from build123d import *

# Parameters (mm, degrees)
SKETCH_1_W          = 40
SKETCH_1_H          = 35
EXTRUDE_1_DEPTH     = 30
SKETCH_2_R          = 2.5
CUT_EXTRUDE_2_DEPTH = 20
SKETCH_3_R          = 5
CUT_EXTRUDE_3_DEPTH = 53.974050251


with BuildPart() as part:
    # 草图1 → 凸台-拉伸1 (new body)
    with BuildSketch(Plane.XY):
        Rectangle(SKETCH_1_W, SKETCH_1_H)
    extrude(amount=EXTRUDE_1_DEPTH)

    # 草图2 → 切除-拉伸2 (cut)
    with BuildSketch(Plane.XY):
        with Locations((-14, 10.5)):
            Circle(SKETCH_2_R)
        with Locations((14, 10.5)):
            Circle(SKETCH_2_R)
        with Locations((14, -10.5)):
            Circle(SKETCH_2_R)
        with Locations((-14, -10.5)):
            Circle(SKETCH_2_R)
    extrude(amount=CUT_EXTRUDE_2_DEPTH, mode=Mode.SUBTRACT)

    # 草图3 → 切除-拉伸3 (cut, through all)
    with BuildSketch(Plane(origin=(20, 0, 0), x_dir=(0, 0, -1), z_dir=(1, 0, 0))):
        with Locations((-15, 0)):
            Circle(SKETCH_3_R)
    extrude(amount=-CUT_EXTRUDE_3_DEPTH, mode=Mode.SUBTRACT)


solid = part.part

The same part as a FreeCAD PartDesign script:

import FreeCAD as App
import Part
import Sketcher
from FreeCAD import Vector

doc = App.newDocument("Part")
body = doc.addObject("PartDesign::Body", "Body")

# Sketch on XY plane
sketch1 = body.newObject("Sketcher::SketchObject", "Sketch")
sketch1.AttachmentSupport = (doc.getObject("XY_Plane"), [""])
sketch1.MapMode = "FlatFace"
sketch1.addGeometry(Part.LineSegment(Vector(-20, 18, 0), Vector(-20, -18, 0)), False)
sketch1.addGeometry(Part.LineSegment(Vector(-20, -18, 0), Vector(20, -18, 0)), False)
sketch1.addGeometry(Part.LineSegment(Vector(20, -18, 0), Vector(20, 18, 0)), False)
sketch1.addGeometry(Part.LineSegment(Vector(20, 18, 0), Vector(-20, 18, 0)), False)
sketch1.addConstraint(Sketcher.Constraint("Coincident", 0, 2, 1, 1))
sketch1.addConstraint(Sketcher.Constraint("Coincident", 1, 2, 2, 1))
sketch1.addConstraint(Sketcher.Constraint("Coincident", 2, 2, 3, 1))
sketch1.addConstraint(Sketcher.Constraint("Coincident", 3, 2, 0, 1))
sketch1.addConstraint(Sketcher.Constraint("Vertical", 0))
sketch1.addConstraint(Sketcher.Constraint("Horizontal", 1))
sketch1.addConstraint(Sketcher.Constraint("Vertical", 2))
sketch1.addConstraint(Sketcher.Constraint("Horizontal", 3))
sketch1.addConstraint(Sketcher.Constraint("Symmetric", 0, 2, 2, 2, -1, 1))
sketch1.addConstraint(Sketcher.Constraint("DistanceX", 1, 1, 1, 2, 40.0))
sketch1.addConstraint(Sketcher.Constraint("DistanceY", 0, 2, 0, 1, 35.0))
pad1 = body.newObject("PartDesign::Pad", "Pad")
pad1.Profile = sketch1
pad1.Length = 30

# Sketch on XY plane
sketch2 = body.newObject("Sketcher::SketchObject", "Sketch001")
sketch2.AttachmentSupport = (doc.getObject("XY_Plane"), [""])
sketch2.MapMode = "FlatFace"
sketch2.addGeometry(Part.Circle(Vector(-14, 10.5, 0), Vector(0, 0, 1), 2.5), False)
sketch2.addGeometry(Part.Circle(Vector(14, 10.5, 0), Vector(0, 0, 1), 2.5), False)
sketch2.addGeometry(Part.Circle(Vector(14, -10.5, 0), Vector(0, 0, 1), 2.5), False)
sketch2.addGeometry(Part.Circle(Vector(-14, -10.5, 0), Vector(0, 0, 1), 2.5), False)
sketch2.addConstraint(Sketcher.Constraint("Equal", 0, 1))
sketch2.addConstraint(Sketcher.Constraint("Equal", 1, 2))
sketch2.addConstraint(Sketcher.Constraint("Equal", 2, 3))
sketch2.addConstraint(Sketcher.Constraint("Symmetric", 0, 3, 2, 3, -1, 1))
sketch2.addConstraint(Sketcher.Constraint("Symmetric", 1, 3, 3, 3, -1, 1))
sketch2.addConstraint(Sketcher.Constraint("Symmetric", 0, 3, 1, 3, -2))
sketch2.addConstraint(Sketcher.Constraint("Diameter", 0, 5.0))
sketch2.addConstraint(Sketcher.Constraint("DistanceX", 0, 3, -1, 1, 14.0))
sketch2.addConstraint(Sketcher.Constraint("DistanceY", 2, 3, 1, 3, 21.0))
pocket1 = body.newObject("PartDesign::Pocket", "Pocket")
pocket1.Profile = sketch2
pocket1.Length = 20
pocket1.Reversed = True

# Sketch on YZ plane
sketch3 = body.newObject("Sketcher::SketchObject", "Sketch002")
sketch3.AttachmentSupport = (doc.getObject("YZ_Plane"), [""])
sketch3.MapMode = "FlatFace"
sketch3.AttachmentOffset = App.Placement(Vector(0, 0, 20), App.Rotation())
sketch3.addGeometry(Part.Circle(Vector(0, 15, 0), Vector(0, 0, 1), 5), False)
sketch3.addConstraint(Sketcher.Constraint("PointOnObject", 0, 3, -2))
sketch3.addConstraint(Sketcher.Constraint("Diameter", 0, 10.0))
sketch3.addConstraint(Sketcher.Constraint("DistanceY", -1, 1, 0, 3, 15.0))
pocket2 = body.newObject("PartDesign::Pocket", "Pocket001")
pocket2.Profile = sketch3
pocket2.Type = "ThroughAll"

doc.recompute()
